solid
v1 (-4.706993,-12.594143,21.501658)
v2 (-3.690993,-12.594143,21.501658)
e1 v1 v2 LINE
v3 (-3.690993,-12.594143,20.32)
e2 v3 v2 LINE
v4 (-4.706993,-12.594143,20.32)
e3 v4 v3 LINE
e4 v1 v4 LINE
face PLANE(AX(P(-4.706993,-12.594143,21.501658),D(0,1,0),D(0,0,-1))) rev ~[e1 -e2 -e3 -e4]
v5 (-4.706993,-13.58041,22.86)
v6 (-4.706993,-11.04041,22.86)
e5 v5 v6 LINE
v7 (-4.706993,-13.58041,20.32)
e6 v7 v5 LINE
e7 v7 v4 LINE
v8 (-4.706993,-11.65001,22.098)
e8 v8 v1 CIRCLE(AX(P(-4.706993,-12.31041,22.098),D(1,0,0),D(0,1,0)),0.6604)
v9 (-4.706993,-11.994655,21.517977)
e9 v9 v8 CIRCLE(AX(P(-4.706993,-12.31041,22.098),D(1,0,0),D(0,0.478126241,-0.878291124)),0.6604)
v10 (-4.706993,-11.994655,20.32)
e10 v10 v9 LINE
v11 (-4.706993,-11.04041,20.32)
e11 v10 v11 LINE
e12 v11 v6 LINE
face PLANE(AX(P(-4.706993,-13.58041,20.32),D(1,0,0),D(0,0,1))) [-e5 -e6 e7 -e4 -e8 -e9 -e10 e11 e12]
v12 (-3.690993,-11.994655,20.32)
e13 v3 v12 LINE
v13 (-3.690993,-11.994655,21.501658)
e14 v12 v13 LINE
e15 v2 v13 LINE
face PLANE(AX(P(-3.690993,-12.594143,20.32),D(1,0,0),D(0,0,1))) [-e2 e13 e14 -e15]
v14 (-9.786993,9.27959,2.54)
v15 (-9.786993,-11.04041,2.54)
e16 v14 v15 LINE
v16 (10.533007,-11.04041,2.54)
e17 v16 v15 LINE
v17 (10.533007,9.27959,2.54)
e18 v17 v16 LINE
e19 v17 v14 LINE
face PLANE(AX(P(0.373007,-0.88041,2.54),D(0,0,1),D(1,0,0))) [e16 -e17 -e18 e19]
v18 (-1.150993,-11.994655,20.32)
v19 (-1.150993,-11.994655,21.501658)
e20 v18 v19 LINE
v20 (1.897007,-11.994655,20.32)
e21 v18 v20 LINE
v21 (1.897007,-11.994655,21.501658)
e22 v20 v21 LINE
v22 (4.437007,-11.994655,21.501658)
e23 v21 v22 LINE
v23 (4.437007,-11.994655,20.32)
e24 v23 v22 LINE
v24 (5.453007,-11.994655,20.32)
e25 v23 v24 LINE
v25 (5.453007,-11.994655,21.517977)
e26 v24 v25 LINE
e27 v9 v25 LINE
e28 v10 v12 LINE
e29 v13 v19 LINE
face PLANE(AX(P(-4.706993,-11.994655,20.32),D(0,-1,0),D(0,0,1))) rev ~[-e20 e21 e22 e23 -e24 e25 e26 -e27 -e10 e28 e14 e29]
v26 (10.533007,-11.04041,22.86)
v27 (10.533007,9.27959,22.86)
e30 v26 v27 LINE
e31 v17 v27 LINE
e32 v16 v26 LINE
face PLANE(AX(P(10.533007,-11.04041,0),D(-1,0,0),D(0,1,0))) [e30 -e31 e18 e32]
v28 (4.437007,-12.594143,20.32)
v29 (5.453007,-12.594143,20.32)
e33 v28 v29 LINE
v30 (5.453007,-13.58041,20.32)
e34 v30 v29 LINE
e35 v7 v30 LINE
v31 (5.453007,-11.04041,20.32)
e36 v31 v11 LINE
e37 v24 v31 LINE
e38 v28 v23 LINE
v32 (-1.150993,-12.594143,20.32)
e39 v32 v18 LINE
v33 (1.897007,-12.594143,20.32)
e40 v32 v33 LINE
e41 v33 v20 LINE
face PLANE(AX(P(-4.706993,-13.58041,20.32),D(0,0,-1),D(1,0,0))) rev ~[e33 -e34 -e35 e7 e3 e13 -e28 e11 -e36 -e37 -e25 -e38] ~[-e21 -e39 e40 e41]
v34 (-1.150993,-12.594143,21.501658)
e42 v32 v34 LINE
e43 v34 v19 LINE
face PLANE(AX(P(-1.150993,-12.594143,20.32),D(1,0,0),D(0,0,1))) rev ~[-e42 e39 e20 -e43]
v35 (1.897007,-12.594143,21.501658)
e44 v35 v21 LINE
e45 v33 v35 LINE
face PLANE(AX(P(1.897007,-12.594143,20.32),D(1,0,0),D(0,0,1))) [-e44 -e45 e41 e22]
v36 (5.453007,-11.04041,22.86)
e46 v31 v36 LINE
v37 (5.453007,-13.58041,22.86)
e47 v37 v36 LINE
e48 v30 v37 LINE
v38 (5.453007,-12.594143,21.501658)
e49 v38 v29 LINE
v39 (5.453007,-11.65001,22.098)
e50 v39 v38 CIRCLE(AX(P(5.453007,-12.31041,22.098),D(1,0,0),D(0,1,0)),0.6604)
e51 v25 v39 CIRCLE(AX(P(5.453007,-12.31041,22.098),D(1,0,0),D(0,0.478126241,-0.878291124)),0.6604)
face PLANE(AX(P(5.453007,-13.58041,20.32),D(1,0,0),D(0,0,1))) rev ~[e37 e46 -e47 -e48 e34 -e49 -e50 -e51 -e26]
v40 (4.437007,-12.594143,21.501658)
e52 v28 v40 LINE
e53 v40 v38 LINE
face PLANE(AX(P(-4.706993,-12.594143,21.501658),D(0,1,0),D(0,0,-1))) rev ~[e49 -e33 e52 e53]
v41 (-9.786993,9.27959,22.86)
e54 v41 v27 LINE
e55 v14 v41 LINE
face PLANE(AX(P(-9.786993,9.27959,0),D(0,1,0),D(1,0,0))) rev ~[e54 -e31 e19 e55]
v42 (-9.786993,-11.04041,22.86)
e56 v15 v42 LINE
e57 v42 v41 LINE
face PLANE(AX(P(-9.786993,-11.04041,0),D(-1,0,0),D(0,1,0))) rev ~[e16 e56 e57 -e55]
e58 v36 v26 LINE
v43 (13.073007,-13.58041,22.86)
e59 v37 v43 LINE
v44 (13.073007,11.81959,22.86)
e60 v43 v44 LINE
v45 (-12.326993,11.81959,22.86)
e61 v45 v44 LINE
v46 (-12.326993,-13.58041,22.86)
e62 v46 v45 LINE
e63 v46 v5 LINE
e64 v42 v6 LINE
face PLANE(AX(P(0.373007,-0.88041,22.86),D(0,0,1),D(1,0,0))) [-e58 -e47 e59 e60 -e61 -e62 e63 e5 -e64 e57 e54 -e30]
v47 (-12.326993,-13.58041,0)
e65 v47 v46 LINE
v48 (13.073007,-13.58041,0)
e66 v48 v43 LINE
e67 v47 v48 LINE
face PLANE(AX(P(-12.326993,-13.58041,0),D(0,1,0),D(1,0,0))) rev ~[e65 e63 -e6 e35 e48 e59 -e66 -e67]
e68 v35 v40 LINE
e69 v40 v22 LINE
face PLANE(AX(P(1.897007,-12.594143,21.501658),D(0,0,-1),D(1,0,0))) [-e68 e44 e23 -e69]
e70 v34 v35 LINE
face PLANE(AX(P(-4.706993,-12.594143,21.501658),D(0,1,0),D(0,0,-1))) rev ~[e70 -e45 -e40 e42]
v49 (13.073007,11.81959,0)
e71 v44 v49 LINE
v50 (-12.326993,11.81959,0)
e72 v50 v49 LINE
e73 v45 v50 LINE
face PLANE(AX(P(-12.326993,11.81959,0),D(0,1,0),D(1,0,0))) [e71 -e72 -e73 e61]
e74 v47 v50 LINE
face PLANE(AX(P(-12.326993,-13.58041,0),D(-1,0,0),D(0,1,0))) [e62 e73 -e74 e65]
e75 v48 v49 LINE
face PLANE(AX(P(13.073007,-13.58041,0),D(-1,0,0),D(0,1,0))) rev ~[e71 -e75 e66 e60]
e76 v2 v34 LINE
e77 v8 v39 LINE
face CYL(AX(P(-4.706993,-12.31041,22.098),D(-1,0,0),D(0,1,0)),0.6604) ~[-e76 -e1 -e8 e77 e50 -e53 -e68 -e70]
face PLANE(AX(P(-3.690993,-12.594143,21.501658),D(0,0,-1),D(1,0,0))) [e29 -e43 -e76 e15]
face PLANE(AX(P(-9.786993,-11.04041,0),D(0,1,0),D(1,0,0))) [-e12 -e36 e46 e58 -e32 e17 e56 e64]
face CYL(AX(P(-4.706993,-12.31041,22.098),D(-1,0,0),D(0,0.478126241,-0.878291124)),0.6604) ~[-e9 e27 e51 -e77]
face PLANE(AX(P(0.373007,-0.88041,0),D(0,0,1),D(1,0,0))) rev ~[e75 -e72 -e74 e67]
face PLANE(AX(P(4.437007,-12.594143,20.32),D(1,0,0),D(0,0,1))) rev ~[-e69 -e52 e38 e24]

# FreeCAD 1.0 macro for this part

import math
import FreeCAD as App
import Part
import Sketcher
Q = App.Units.Quantity


def add_polygon(sketch, points):
    """Adds a closed chain of lines whose ends are joined by coincident constraints."""
    first, n = sketch.GeometryCount, len(points)
    for a, b in zip(points, points[1:] + points[:1]):
        sketch.addGeometry(Part.LineSegment(App.Vector(*a, 0), App.Vector(*b, 0)), False)
    for i in range(n):
        sketch.addConstraint(Sketcher.Constraint("Coincident", first + i, 2, first + (i + 1) % n, 1))

doc = App.newDocument("Part")
body = doc.addObject("PartDesign::Body", "Body")

# Sketch on XY plane
sketch1 = body.newObject("Sketcher::SketchObject", "Sketch")
sketch1.AttachmentSupport = (doc.getObject("XY_Plane"), [""])
sketch1.MapMode = "FlatFace"
add_polygon(sketch1, [(-12.326993, 11.81959), (-12.326993, -13.58041), (13.073007, -13.58041), (13.073007, 11.81959)])  # lines 0-3
sketch1.addConstraint(Sketcher.Constraint("Vertical", 0))
sketch1.addConstraint(Sketcher.Constraint("Horizontal", 1))
sketch1.addConstraint(Sketcher.Constraint("Vertical", 2))
sketch1.addConstraint(Sketcher.Constraint("Horizontal", 3))
sketch1.addConstraint(Sketcher.Constraint("Equal", 3, 0))
sketch1.addConstraint(Sketcher.Constraint("DistanceX", 1, 1, 1, 2, Q("1 in")))
sketch1.addConstraint(Sketcher.Constraint("DistanceY", 0, 2, -1, 1, Q("13.58041 mm")))
sketch1.addConstraint(Sketcher.Constraint("DistanceX", 0, 2, -1, 1, Q("12.326993 mm")))
pad1 = body.newObject("PartDesign::Pad", "Pad")
pad1.Profile = sketch1
pad1.Length = Q("0.1 in")

# Sketch on XY plane
sketch2 = body.newObject("Sketcher::SketchObject", "Sketch001")
sketch2.AttachmentSupport = (doc.getObject("XY_Plane"), [""])
sketch2.MapMode = "FlatFace"
add_polygon(sketch2, [(-12.326993, 11.81959), (-12.326993, -13.58041), (13.073007, -13.58041), (13.073007, 11.81959)])  # lines 0-3
add_polygon(sketch2, [(10.533007, -11.04041), (-9.786993, -11.04041), (-9.786993, 9.27959), (10.533007, 9.27959)])  # lines 4-7
sketch2.addConstraint(Sketcher.Constraint("Vertical", 0))
sketch2.addConstraint(Sketcher.Constraint("Horizontal", 1))
sketch2.addConstraint(Sketcher.Constraint("Vertical", 2))
sketch2.addConstraint(Sketcher.Constraint("Horizontal", 3))
sketch2.addConstraint(Sketcher.Constraint("Horizontal", 4))
sketch2.addConstraint(Sketcher.Constraint("Vertical", 5))
sketch2.addConstraint(Sketcher.Constraint("Horizontal", 6))
sketch2.addConstraint(Sketcher.Constraint("Vertical", 7))
sketch2.addConstraint(Sketcher.Constraint("Equal", 3, 0))
sketch2.addConstraint(Sketcher.Constraint("Equal", 6, 5))
sketch2.addConstraint(Sketcher.Constraint("DistanceX", 1, 1, 1, 2, Q("1 in")))
sketch2.addConstraint(Sketcher.Constraint("DistanceX", 4, 2, 4, 1, Q("0.8 in")))
sketch2.addConstraint(Sketcher.Constraint("DistanceX", 0, 2, 4, 2, Q("0.1 in")))
sketch2.addConstraint(Sketcher.Constraint("DistanceY", 0, 2, 4, 2, Q("0.1 in")))
sketch2.addConstraint(Sketcher.Constraint("DistanceY", 0, 2, -1, 1, Q("13.58041 mm")))
sketch2.addConstraint(Sketcher.Constraint("DistanceX", 0, 2, -1, 1, Q("12.326993 mm")))
pad2 = body.newObject("PartDesign::Pad", "Pad001")
pad2.Profile = sketch2
pad2.Length = Q("0.9 in")

# Sketch on XZ plane
sketch3 = body.newObject("Sketcher::SketchObject", "Sketch002")
sketch3.AttachmentSupport = (doc.getObject("XZ_Plane"), [""])
sketch3.MapMode = "FlatFace"
sketch3.AttachmentOffset = App.Placement(App.Vector(0, 0, 13.58041), App.Rotation())
add_polygon(sketch3, [(-4.706993, 22.86), (-4.706993, 20.32), (5.453007, 20.32), (5.453007, 22.86)])  # lines 0-3
sketch3.addConstraint(Sketcher.Constraint("Vertical", 0))
sketch3.addConstraint(Sketcher.Constraint("Horizontal", 1))
sketch3.addConstraint(Sketcher.Constraint("Vertical", 2))
sketch3.addConstraint(Sketcher.Constraint("Horizontal", 3))
sketch3.addConstraint(Sketcher.Constraint("DistanceX", 1, 1, 1, 2, Q("0.4 in")))
sketch3.addConstraint(Sketcher.Constraint("DistanceY", 0, 2, 0, 1, Q("0.1 in")))
sketch3.addConstraint(Sketcher.Constraint("DistanceY", -1, 1, 0, 2, Q("0.8 in")))
sketch3.addConstraint(Sketcher.Constraint("DistanceX", 0, 2, -1, 1, Q("4.706993 mm")))
pocket1 = body.newObject("PartDesign::Pocket", "Pocket")
pocket1.Profile = sketch3
pocket1.Length = Q("0.1 in")

# Sketch on YZ plane
sketch4 = body.newObject("Sketcher::SketchObject", "Sketch003")
sketch4.AttachmentSupport = (doc.getObject("YZ_Plane"), [""])
sketch4.MapMode = "FlatFace"
sketch4.AttachmentOffset = App.Placement(App.Vector(0, 0, -4.706993), App.Rotation())
sketch4.addGeometry(Part.ArcOfCircle(Part.Circle(App.Vector(-12.31041, 22.098, 0), App.Vector(0, 0, 1), 0.6604), math.radians(-61.436905), math.radians(0)), False)
sketch4.addGeometry(Part.ArcOfCircle(Part.Circle(App.Vector(-12.31041, 22.098, 0), App.Vector(0, 0, 1), 0.6604), math.radians(0), math.radians(244.555343)), False)
sketch4.addGeometry(Part.LineSegment(App.Vector(-12.594143, 21.501658, 0), App.Vector(-12.594143, 20.32, 0)), False)
sketch4.addGeometry(Part.LineSegment(App.Vector(-12.594143, 20.32, 0), App.Vector(-11.994655, 20.32, 0)), False)
sketch4.addGeometry(Part.LineSegment(App.Vector(-11.994655, 20.32, 0), App.Vector(-11.994655, 21.517977, 0)), False)
sketch4.addConstraint(Sketcher.Constraint("Tangent", 0, 2, 1, 1))
sketch4.addConstraint(Sketcher.Constraint("Coincident", 1, 2, 2, 1))
sketch4.addConstraint(Sketcher.Constraint("Coincident", 2, 2, 3, 1))
sketch4.addConstraint(Sketcher.Constraint("Coincident", 3, 2, 4, 1))
sketch4.addConstraint(Sketcher.Constraint("Coincident", 4, 2, 0, 1))
sketch4.addConstraint(Sketcher.Constraint("Vertical", 2))
sketch4.addConstraint(Sketcher.Constraint("Horizontal", 3))
sketch4.addConstraint(Sketcher.Constraint("Vertical", 4))
sketch4.addConstraint(Sketcher.Constraint("Equal", 0, 1))
sketch4.addConstraint(Sketcher.Constraint("Horizontal", 1, 3, 0, 2))
sketch4.addConstraint(Sketcher.Constraint("Radius", 0, Q("0.026 in")))
sketch4.addConstraint(Sketcher.Constraint("DistanceY", -1, 1, 2, 2, Q("0.8 in")))
sketch4.addConstraint(Sketcher.Constraint("DistanceY", -1, 1, 0, 3, Q("0.87 in")))
sketch4.addConstraint(Sketcher.Constraint("DistanceX", 3, 1, 3, 2, Q("0.599488 mm")))
sketch4.addConstraint(Sketcher.Constraint("DistanceY", 2, 2, 2, 1, Q("1.181658 mm")))
sketch4.addConstraint(Sketcher.Constraint("DistanceX", 0, 3, -1, 1, Q("12.31041 mm")))
pad3 = body.newObject("PartDesign::Pad", "Pad002")
pad3.Profile = sketch4
pad3.Length = Q("0.4 in")

# Sketch on XZ plane
sketch5 = body.newObject("Sketcher::SketchObject", "Sketch004")
sketch5.AttachmentSupport = (doc.getObject("XZ_Plane"), [""])
sketch5.MapMode = "FlatFace"
sketch5.AttachmentOffset = App.Placement(App.Vector(0, 0, 12.594143), App.Rotation())
add_polygon(sketch5, [(-3.690993, 21.501658), (-3.690993, 20.32), (-1.150993, 20.32), (-1.150993, 21.501658)])  # lines 0-3
add_polygon(sketch5, [(1.897007, 21.501658), (1.897007, 20.32), (4.437007, 20.32), (4.437007, 21.501658)])  # lines 4-7
sketch5.addConstraint(Sketcher.Constraint("Vertical", 0))
sketch5.addConstraint(Sketcher.Constraint("Horizontal", 1))
sketch5.addConstraint(Sketcher.Constraint("Vertical", 2))
sketch5.addConstraint(Sketcher.Constraint("Horizontal", 3))
sketch5.addConstraint(Sketcher.Constraint("Vertical", 4))
sketch5.addConstraint(Sketcher.Constraint("Horizontal", 5))
sketch5.addConstraint(Sketcher.Constraint("Vertical", 6))
sketch5.addConstraint(Sketcher.Constraint("Horizontal", 7))
sketch5.addConstraint(Sketcher.Constraint("Horizontal", 1, 2, 4, 2))
sketch5.addConstraint(Sketcher.Constraint("Horizontal", 3, 2, 6, 2))
sketch5.addConstraint(Sketcher.Constraint("Equal", 3, 5))
sketch5.addConstraint(Sketcher.Constraint("DistanceX", 1, 1, 1, 2, Q("0.1 in")))
sketch5.addConstraint(Sketcher.Constraint("DistanceY", -1, 1, 0, 2, Q("0.8 in")))
sketch5.addConstraint(Sketcher.Constraint("DistanceX", 1, 2, 4, 2, Q("0.12 in")))
sketch5.addConstraint(Sketcher.Constraint("DistanceY", 0, 2, 0, 1, Q("1.181658 mm")))
sketch5.addConstraint(Sketcher.Constraint("DistanceX", 0, 2, -1, 1, Q("3.690993 mm")))
pocket2 = body.newObject("PartDesign::Pocket", "Pocket001")
pocket2.Profile = sketch5
pocket2.Length = Q("0.1 in")

doc.recompute()
